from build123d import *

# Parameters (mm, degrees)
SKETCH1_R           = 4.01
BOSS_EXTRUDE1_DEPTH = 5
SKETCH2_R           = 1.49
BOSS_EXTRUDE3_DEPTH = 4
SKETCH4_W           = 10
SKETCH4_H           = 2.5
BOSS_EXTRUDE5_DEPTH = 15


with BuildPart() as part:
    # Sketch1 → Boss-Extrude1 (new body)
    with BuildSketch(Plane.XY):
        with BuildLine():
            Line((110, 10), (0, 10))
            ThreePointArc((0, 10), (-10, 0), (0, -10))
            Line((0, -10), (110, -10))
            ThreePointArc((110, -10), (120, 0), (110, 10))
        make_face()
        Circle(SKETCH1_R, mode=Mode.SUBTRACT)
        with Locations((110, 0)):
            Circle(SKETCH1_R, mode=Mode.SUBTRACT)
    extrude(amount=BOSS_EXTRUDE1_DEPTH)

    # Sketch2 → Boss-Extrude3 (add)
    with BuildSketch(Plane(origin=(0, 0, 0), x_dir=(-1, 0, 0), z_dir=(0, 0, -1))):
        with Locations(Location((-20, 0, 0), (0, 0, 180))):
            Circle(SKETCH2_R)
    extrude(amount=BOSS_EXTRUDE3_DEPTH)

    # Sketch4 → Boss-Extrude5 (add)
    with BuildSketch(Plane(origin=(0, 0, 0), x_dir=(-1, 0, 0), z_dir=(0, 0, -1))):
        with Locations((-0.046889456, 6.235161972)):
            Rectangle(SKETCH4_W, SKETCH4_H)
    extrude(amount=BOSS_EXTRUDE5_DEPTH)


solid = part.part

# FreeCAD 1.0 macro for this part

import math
import FreeCAD as App
import Part
import Sketcher

V = App.Vector
Q = App.Units.Quantity

doc = App.newDocument("Part")
body = doc.addObject("PartDesign::Body", "Body")

# Sketch on XY plane
sketch1 = doc.addObject("Sketcher::SketchObject", "Sketch")
body.addObject(sketch1)
sketch1.AttachmentSupport = (doc.XY_Plane, [""])
sketch1.MapMode = "FlatFace"
sketch1.addGeometry([
    Part.LineSegment(V(110, 10, 0), V(0, 10, 0)),  # 0
    Part.ArcOfCircle(Part.Circle(V(0, 0, 0), V(0, 0, 1), 10), math.radians(90), math.radians(270)),  # 1
    Part.LineSegment(V(0, -10, 0), V(110, -10, 0)),  # 2
    Part.ArcOfCircle(Part.Circle(V(110, 0, 0), V(0, 0, 1), 10), math.radians(-90), math.radians(90)),  # 3
    Part.Circle(V(0, 0, 0), V(0, 0, 1), 4),  # 4
    Part.Circle(V(110, 0, 0), V(0, 0, 1), 4),  # 5
], False)
sketch1.addConstraint([
    Sketcher.Constraint("Tangent", 0, 2, 1, 1),
    Sketcher.Constraint("Tangent", 1, 2, 2, 1),
    Sketcher.Constraint("Tangent", 2, 2, 3, 1),
    Sketcher.Constraint("Tangent", 3, 2, 0, 1),
    Sketcher.Constraint("Horizontal", 0),
    Sketcher.Constraint("Horizontal", 2),
    Sketcher.Constraint("Coincident", 1, 3, -1, 1),
    Sketcher.Constraint("Coincident", 4, 3, -1, 1),
    Sketcher.Constraint("Coincident", 5, 3, 3, 3),
    Sketcher.Constraint("Equal", 4, 5),
    Sketcher.Constraint("Radius", 1, Q("10 mm")),
    Sketcher.Constraint("Diameter", 4, Q("8.02 mm")),
    Sketcher.Constraint("DistanceX", 0, 2, 0, 1, Q("110 mm")),
])
pad1 = doc.addObject("PartDesign::Pad", "Pad")
body.addObject(pad1)
pad1.Profile = sketch1
pad1.Length = 5

# Sketch on XY plane
sketch2 = doc.addObject("Sketcher::SketchObject", "Sketch001")
body.addObject(sketch2)
sketch2.AttachmentSupport = (doc.XY_Plane, [""])
sketch2.MapMode = "FlatFace"
sketch2.addGeometry(Part.Circle(V(20, 0, 0), V(0, 0, 1), 1.5), False)
sketch2.addConstraint([
    Sketcher.Constraint("PointOnObject", 0, 3, -1),
    Sketcher.Constraint("Diameter", 0, Q("2.98 mm")),
    Sketcher.Constraint("DistanceX", -1, 1, 0, 3, Q("20 mm")),
])
pad2 = doc.addObject("PartDesign::Pad", "Pad001")
body.addObject(pad2)
pad2.Profile = sketch2
pad2.Length = 4
pad2.Reversed = True

# Sketch on XY plane
sketch3 = doc.addObject("Sketcher::SketchObject", "Sketch002")
body.addObject(sketch3)
sketch3.AttachmentSupport = (doc.XY_Plane, [""])
sketch3.MapMode = "FlatFace"
sketch3.addGeometry([
    Part.LineSegment(V(5, 7.5, 0), V(5, 5, 0)),
    Part.LineSegment(V(5, 5, 0), V(-5, 5, 0)),
    Part.LineSegment(V(-5, 5, 0), V(-5, 7.5, 0)),
    Part.LineSegment(V(-5, 7.5, 0), V(5, 7.5, 0)),
], False)
sketch3.addConstraint([
    Sketcher.Constraint("Coincident", 0, 2, 1, 1),
    Sketcher.Constraint("Coincident", 1, 2, 2, 1),
    Sketcher.Constraint("Coincident", 2, 2, 3, 1),
    Sketcher.Constraint("Coincident", 3, 2, 0, 1),
    Sketcher.Constraint("Vertical", 0),
    Sketcher.Constraint("Horizontal", 1),
    Sketcher.Constraint("Vertical", 2),
    Sketcher.Constraint("Horizontal", 3),
    Sketcher.Constraint("DistanceX", 1, 2, 1, 1, Q("10 mm")),
    Sketcher.Constraint("DistanceY", 0, 2, 0, 1, Q("2.5 mm")),
    Sketcher.Constraint("DistanceX", -1, 1, 0, 2, Q("5.046889 mm")),
    Sketcher.Constraint("DistanceY", -1, 1, 0, 2, Q("4.985162 mm")),
])
pad3 = doc.addObject("PartDesign::Pad", "Pad002")
body.addObject(pad3)
pad3.Profile = sketch3
pad3.Length = 15
pad3.Reversed = True

doc.recompute()
